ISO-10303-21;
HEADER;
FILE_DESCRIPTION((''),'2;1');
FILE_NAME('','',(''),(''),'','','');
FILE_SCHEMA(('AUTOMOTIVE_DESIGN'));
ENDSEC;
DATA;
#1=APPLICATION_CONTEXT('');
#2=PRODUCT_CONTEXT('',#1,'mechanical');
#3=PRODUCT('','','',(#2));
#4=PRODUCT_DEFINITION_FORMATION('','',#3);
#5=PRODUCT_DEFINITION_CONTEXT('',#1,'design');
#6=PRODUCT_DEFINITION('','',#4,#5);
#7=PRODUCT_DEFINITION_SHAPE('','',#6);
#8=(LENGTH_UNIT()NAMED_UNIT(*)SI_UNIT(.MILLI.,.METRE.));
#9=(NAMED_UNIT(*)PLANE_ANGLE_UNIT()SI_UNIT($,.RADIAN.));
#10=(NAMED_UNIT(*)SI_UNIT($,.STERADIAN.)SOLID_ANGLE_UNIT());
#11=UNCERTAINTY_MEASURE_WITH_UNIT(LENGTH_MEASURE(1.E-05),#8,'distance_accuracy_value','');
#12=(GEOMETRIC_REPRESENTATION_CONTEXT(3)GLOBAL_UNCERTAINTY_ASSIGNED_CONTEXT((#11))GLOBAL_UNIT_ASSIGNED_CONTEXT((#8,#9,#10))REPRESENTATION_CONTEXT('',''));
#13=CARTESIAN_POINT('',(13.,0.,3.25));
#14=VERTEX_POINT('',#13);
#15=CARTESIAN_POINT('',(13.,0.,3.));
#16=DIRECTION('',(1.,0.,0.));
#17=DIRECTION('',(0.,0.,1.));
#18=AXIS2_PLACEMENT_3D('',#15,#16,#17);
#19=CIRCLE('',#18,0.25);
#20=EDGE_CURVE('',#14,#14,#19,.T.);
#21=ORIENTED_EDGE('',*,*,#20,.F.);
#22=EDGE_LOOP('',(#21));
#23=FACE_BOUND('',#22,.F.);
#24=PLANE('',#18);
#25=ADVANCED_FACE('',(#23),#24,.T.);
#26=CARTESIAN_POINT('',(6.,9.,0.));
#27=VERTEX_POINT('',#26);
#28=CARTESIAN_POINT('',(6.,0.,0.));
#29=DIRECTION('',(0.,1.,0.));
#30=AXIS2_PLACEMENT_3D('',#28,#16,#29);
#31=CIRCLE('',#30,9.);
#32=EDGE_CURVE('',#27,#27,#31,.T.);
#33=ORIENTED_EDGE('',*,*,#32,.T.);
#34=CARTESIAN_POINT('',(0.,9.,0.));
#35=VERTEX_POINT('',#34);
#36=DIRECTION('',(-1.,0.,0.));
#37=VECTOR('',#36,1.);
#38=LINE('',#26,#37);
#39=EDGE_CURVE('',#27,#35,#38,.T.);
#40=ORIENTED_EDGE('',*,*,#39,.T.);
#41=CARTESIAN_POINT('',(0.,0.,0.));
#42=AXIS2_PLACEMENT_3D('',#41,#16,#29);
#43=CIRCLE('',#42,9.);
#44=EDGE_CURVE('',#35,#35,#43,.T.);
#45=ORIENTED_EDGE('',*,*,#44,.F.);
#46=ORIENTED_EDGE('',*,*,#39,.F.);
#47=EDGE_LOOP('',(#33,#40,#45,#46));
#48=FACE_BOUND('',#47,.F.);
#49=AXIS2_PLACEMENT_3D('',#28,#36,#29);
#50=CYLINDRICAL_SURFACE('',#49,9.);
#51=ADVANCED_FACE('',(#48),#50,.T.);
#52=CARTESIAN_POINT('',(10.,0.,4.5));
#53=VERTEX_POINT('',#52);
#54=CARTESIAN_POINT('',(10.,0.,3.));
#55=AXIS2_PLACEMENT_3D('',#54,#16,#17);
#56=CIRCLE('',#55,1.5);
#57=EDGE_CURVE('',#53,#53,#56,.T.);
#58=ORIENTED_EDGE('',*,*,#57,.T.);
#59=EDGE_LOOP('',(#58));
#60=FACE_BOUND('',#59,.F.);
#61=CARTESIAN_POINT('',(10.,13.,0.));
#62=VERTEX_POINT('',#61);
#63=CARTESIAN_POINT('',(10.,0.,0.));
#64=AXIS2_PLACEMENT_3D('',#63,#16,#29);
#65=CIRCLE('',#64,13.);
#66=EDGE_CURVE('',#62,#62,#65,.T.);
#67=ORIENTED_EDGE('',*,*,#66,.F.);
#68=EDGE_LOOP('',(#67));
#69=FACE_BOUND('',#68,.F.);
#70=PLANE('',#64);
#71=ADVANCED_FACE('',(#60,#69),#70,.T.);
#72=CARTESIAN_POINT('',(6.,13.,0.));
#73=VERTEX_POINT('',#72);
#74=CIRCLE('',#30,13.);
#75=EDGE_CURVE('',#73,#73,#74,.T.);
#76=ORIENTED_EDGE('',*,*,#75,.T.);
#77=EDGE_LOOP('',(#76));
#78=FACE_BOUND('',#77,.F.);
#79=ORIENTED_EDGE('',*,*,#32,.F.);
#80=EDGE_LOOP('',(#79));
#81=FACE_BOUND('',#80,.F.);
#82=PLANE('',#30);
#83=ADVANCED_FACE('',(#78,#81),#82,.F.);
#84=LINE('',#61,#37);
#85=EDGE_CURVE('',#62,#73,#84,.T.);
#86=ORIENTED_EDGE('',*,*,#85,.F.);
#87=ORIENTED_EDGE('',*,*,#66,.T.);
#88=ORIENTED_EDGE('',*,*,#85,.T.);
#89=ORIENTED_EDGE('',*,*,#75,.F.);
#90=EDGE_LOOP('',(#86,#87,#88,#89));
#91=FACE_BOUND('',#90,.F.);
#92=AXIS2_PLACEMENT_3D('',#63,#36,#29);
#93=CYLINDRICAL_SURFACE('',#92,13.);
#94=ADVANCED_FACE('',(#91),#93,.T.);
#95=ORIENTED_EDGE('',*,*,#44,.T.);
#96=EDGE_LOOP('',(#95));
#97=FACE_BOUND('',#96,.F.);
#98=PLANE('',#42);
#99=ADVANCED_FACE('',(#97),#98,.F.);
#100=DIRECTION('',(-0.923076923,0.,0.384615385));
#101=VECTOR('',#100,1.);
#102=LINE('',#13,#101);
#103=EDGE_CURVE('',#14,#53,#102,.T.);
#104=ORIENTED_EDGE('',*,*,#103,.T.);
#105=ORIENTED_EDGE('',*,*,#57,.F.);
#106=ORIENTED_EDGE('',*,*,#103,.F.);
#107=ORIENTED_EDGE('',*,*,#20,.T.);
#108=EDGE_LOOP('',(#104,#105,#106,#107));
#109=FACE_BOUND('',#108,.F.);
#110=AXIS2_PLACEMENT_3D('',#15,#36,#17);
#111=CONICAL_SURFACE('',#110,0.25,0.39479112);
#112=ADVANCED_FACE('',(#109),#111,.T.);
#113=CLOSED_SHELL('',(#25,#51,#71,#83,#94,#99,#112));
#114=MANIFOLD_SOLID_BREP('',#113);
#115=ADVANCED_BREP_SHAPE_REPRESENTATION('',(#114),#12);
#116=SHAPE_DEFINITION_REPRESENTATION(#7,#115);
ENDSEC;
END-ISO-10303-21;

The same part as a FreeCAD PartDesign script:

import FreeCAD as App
import Part
import Sketcher

V = App.Vector


def add_polygon(sketch, points):
    """Adds a closed chain of lines whose ends are joined by coincident constraints."""
    first, n = sketch.GeometryCount, len(points)
    for a, b in zip(points, points[1:] + points[:1]):
        sketch.addGeometry(Part.LineSegment(App.Vector(*a, 0), App.Vector(*b, 0)), False)
    for i in range(n):
        sketch.addConstraint(Sketcher.Constraint("Coincident", first + i, 2, first + (i + 1) % n, 1))

doc = App.newDocument("Part")
body = doc.addObject("PartDesign::Body", "Body")

# Sketch on XY plane
sketch1 = doc.addObject("Sketcher::SketchObject", "Sketch")
body.addObject(sketch1)
sketch1.AttachmentSupport = (doc.XY_Plane, [""])
sketch1.MapMode = "FlatFace"
add_polygon(sketch1, [(0, 9), (0, 0), (10, 0), (10, 13), (6, 13), (6, 9)])  # lines 0-5
sketch1.addConstraint([
    Sketcher.Constraint("Vertical", 0),
    Sketcher.Constraint("Horizontal", 1),
    Sketcher.Constraint("Vertical", 2),
    Sketcher.Constraint("Horizontal", 3),
    Sketcher.Constraint("Vertical", 4),
    Sketcher.Constraint("Horizontal", 5),
    Sketcher.Constraint("Coincident", 0, 2, -1, 1),
    Sketcher.Constraint("Equal", 3, 4),
    Sketcher.Constraint("DistanceX", 1, 1, 1, 2, 10.0),
    Sketcher.Constraint("DistanceX", 3, 2, 3, 1, 4.0),
    Sketcher.Constraint("DistanceY", 0, 2, 0, 1, 9.0),
])
revolution = doc.addObject("PartDesign::Revolution", "Revolution")
body.addObject(revolution)
revolution.Profile = sketch1
revolution.ReferenceAxis = (sketch1, ["H_Axis"])
revolution.Angle = 360

# Sketch on XZ plane
sketch2 = doc.addObject("Sketcher::SketchObject", "Sketch001")
body.addObject(sketch2)
sketch2.AttachmentSupport = (doc.XZ_Plane, [""])
sketch2.MapMode = "FlatFace"
add_polygon(sketch2, [(10, 4.5), (10, 3), (13, 3), (13, 3.25)])  # lines 0-3
sketch2.addGeometry(Part.LineSegment(V(10, 3, 0), V(13, 3, 0)), True)  # axis
sketch2.addConstraint([
    Sketcher.Constraint("Vertical", 0),
    Sketcher.Constraint("Horizontal", 1),
    Sketcher.Constraint("Vertical", 2),
    Sketcher.Constraint("Horizontal", 4),
    Sketcher.Constraint("Coincident", 4, 1, 0, 2),
    Sketcher.Constraint("Vertical", 2, 2, 4, 2),
    Sketcher.Constraint("DistanceX", 1, 1, 1, 2, 3.0),
    Sketcher.Constraint("DistanceY", 0, 2, 0, 1, 1.5),
    Sketcher.Constraint("DistanceX", -1, 1, 0, 2, 10.0),
    Sketcher.Constraint("DistanceY", -1, 1, 0, 2, 3.0),
    Sketcher.Constraint("DistanceY", 2, 1, 2, 2, 0.25),
])
revolution2 = doc.addObject("PartDesign::Revolution", "Revolution001")
body.addObject(revolution2)
revolution2.Profile = sketch2
revolution2.ReferenceAxis = (sketch2, ["Axis0"])
revolution2.Angle = 360

doc.recompute()
